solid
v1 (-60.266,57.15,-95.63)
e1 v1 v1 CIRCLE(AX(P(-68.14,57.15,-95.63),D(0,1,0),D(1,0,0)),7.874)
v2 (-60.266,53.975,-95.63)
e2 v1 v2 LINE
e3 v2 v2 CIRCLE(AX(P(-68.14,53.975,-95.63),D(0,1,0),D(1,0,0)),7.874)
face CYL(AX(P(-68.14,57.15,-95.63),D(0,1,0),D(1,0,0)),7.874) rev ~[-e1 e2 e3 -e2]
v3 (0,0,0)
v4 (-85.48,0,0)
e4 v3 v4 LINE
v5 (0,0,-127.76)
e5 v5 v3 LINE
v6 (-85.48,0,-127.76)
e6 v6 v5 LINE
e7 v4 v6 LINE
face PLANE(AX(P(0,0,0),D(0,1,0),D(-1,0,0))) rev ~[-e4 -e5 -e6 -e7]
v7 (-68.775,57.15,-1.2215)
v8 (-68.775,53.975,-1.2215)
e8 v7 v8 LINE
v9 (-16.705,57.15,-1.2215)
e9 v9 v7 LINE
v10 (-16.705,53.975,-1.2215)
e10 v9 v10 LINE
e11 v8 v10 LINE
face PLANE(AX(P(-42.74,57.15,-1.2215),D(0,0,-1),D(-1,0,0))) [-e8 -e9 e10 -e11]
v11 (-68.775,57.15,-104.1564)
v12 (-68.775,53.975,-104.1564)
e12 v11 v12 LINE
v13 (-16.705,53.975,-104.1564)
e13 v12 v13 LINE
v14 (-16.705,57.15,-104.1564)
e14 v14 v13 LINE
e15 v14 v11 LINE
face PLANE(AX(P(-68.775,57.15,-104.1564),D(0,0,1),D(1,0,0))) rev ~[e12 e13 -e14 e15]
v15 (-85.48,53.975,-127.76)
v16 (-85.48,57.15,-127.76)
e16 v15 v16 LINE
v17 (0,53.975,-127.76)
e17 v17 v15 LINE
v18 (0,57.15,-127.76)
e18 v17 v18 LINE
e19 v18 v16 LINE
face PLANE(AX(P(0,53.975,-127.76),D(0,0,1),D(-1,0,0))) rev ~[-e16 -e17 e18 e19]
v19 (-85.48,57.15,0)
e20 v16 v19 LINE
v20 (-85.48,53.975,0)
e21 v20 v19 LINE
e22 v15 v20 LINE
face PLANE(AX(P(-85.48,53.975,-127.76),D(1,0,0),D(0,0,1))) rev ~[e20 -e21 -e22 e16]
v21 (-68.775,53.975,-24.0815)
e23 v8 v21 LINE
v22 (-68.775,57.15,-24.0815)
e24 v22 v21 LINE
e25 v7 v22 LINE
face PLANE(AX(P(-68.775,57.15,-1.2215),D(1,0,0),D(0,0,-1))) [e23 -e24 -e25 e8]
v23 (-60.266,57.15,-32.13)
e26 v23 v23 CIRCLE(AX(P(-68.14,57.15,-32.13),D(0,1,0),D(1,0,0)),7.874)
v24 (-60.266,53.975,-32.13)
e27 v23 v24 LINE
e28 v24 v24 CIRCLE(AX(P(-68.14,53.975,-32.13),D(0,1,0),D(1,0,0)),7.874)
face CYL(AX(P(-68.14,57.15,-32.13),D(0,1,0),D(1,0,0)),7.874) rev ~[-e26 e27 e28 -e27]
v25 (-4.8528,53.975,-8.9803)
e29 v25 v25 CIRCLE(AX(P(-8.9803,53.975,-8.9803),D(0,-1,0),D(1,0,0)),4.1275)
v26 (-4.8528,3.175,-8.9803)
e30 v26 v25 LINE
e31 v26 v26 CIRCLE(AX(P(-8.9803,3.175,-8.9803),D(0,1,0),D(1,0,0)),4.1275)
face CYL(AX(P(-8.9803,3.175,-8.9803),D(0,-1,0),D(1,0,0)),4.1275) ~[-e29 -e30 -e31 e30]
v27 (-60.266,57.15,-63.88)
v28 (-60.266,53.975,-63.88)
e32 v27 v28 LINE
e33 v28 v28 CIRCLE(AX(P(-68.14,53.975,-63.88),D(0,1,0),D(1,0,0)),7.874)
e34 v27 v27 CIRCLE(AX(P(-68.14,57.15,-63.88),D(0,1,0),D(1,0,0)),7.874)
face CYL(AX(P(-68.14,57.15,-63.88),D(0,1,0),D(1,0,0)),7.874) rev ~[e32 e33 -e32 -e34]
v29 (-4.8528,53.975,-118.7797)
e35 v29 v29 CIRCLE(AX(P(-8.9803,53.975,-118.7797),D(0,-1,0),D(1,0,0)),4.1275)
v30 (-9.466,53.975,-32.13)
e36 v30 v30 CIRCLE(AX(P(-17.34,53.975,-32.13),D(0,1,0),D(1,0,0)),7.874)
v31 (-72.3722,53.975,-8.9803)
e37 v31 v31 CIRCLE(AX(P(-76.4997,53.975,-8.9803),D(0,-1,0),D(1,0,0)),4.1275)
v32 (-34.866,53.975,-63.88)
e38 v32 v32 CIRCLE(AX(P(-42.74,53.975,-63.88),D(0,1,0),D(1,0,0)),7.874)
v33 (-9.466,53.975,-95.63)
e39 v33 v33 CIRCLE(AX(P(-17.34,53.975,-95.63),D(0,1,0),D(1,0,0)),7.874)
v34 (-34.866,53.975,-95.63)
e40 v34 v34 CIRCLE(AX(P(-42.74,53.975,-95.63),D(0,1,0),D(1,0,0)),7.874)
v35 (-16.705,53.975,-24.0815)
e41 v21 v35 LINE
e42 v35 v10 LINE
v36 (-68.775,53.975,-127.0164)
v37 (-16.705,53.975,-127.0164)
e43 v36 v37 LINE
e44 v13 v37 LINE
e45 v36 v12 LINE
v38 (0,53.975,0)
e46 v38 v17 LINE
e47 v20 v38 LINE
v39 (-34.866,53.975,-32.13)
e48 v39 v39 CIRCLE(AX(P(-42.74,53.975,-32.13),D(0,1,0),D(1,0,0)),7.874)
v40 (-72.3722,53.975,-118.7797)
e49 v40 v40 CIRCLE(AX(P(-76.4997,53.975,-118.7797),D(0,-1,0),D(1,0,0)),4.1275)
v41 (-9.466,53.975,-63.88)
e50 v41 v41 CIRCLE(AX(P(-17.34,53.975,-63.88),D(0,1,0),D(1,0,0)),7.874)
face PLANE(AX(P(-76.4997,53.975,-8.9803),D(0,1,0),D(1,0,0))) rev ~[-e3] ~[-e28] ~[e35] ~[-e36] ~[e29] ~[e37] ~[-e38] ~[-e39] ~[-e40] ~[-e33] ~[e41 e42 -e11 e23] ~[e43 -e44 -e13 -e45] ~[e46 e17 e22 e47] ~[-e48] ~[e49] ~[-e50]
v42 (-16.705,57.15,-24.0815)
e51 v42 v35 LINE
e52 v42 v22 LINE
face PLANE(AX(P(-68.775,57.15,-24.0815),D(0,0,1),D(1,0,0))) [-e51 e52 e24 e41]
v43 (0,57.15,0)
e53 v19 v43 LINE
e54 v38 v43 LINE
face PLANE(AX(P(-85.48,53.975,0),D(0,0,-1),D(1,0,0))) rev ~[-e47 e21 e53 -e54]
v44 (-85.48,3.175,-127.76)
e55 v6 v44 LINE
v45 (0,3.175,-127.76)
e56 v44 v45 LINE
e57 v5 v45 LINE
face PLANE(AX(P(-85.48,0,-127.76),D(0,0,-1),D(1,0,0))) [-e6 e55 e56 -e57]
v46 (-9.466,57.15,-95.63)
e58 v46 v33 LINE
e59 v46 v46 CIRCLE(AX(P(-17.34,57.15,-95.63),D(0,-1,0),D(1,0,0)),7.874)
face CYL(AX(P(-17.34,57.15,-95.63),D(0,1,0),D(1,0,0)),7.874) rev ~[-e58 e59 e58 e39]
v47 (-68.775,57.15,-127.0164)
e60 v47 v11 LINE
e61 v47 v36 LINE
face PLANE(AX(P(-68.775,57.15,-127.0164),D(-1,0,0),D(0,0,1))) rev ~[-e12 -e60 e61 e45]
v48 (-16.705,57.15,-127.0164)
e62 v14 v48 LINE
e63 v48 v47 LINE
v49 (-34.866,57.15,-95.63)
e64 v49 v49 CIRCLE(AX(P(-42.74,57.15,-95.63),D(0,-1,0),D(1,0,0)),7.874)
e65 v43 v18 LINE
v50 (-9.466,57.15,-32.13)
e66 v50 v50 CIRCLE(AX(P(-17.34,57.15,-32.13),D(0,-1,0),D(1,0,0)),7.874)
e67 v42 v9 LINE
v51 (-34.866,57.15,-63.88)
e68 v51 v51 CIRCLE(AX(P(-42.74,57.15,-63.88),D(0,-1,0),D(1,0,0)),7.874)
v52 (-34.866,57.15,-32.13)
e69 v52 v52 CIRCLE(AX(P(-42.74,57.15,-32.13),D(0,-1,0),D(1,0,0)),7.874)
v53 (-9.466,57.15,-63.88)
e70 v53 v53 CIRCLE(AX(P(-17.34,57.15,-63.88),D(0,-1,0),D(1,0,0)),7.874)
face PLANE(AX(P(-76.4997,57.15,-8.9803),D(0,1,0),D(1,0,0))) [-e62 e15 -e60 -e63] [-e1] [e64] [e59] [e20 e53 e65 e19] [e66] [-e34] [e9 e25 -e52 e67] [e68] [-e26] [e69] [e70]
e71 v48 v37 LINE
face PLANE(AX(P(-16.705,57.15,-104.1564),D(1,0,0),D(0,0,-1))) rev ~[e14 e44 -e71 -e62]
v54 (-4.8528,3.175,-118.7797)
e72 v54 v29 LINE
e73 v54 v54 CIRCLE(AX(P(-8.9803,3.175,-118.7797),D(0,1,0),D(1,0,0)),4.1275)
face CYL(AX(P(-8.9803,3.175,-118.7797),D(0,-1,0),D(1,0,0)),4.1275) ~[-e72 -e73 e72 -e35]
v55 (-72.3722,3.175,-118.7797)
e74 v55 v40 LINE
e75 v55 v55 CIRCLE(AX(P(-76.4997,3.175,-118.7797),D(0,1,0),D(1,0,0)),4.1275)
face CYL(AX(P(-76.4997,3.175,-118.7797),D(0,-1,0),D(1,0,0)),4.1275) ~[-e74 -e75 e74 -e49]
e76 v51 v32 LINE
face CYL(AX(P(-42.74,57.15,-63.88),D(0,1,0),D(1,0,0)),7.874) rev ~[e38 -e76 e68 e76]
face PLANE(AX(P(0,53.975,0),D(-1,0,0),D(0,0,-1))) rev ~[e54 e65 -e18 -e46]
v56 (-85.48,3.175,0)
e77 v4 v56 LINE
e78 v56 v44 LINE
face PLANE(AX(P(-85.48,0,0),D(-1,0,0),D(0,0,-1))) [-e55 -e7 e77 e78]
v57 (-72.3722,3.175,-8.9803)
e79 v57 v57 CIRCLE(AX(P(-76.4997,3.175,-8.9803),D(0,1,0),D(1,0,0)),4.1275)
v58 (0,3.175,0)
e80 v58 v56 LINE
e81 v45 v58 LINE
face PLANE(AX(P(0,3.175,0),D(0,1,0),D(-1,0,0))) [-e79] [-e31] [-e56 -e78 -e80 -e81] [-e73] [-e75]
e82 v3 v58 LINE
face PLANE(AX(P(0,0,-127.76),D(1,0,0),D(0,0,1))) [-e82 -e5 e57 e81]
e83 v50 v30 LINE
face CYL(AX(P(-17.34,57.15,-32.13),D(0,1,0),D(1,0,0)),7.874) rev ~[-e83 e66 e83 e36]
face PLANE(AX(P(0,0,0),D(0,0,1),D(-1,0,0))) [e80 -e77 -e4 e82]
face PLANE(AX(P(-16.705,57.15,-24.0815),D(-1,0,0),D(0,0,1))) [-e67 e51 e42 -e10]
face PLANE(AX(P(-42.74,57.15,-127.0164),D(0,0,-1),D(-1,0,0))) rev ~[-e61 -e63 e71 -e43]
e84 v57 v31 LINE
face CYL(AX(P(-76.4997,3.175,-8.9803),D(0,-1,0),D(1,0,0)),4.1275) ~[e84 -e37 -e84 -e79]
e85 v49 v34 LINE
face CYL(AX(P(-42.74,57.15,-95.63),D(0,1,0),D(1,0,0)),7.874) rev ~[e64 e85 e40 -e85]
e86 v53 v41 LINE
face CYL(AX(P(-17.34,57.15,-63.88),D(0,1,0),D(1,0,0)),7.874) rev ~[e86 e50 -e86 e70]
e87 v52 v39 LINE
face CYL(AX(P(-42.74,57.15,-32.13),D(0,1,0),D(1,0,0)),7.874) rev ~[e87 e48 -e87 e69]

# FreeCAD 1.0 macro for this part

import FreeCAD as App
import Part
import Sketcher

V = App.Vector
Q = App.Units.Quantity


def add_polygon(sketch, points):
    """Adds a closed chain of lines whose ends are joined by coincident constraints."""
    first, n = sketch.GeometryCount, len(points)
    for a, b in zip(points, points[1:] + points[:1]):
        sketch.addGeometry(Part.LineSegment(App.Vector(*a, 0), App.Vector(*b, 0)), False)
    for i in range(n):
        sketch.addConstraint(Sketcher.Constraint("Coincident", first + i, 2, first + (i + 1) % n, 1))

doc = App.newDocument("Part")
body = doc.addObject("PartDesign::Body", "Body")

# Sketch on XZ plane
sketch1 = body.newObject("Sketcher::SketchObject", "Sketch")
sketch1.AttachmentSupport = (doc.getObject("XZ_Plane"), [""])
sketch1.MapMode = "FlatFace"
add_polygon(sketch1, [(-85.48, 0), (0, 0), (0, -127.76), (-85.48, -127.76)])  # lines 0-3
sketch1.addConstraint([
    Sketcher.Constraint("Horizontal", 0),
    Sketcher.Constraint("Vertical", 1),
    Sketcher.Constraint("Horizontal", 2),
    Sketcher.Constraint("Vertical", 3),
    Sketcher.Constraint("Coincident", 0, 2, -1, 1),
    Sketcher.Constraint("DistanceX", 0, 1, 0, 2, Q("85.48 mm")),
    Sketcher.Constraint("DistanceY", 1, 2, 1, 1, Q("127.76 mm")),
])
pad1 = body.newObject("PartDesign::Pad", "Pad")
pad1.Profile = sketch1
pad1.Length = Q("0.125 in")
pad1.Reversed = True

# Sketch on XZ plane
sketch2 = body.newObject("Sketcher::SketchObject", "Sketch001")
sketch2.AttachmentSupport = (doc.getObject("XZ_Plane"), [""])
sketch2.MapMode = "FlatFace"
sketch2.AttachmentOffset = App.Placement(V(0, 0, -0.125 * 25.4), App.Rotation())
sketch2.addGeometry([
    Part.Circle(V(-76.4997, -8.9803, 0), V(0, 0, 1), 4.1275),
    Part.Circle(V(-8.9803, -118.7797, 0), V(0, 0, 1), 4.1275),
    Part.Circle(V(-76.4997, -118.7797, 0), V(0, 0, 1), 4.1275),
    Part.Circle(V(-8.9803, -8.9803, 0), V(0, 0, 1), 4.1275),
], False)
sketch2.addConstraint([
    Sketcher.Constraint("Equal", 0, 1),
    Sketcher.Constraint("Equal", 1, 2),
    Sketcher.Constraint("Equal", 2, 3),
    Sketcher.Constraint("Horizontal", 1, 3, 2, 3),
    Sketcher.Constraint("Horizontal", 0, 3, 3, 3),
    Sketcher.Constraint("Vertical", 0, 3, 2, 3),
    Sketcher.Constraint("Vertical", 1, 3, 3, 3),
    Sketcher.Constraint("Diameter", 0, Q("0.325 in")),
    Sketcher.Constraint("DistanceX", 0, 3, -1, 1, Q("3.0118 in")),
    Sketcher.Constraint("DistanceY", 1, 3, 0, 3, Q("4.3228 in")),
    Sketcher.Constraint("DistanceY", 0, 3, -1, 1, Q("8.9803 mm")),
    Sketcher.Constraint("DistanceX", 1, 3, -1, 1, Q("8.9803 mm")),
])
pad2 = body.newObject("PartDesign::Pad", "Pad001")
pad2.Profile = sketch2
pad2.Length = Q("2 in")
pad2.Reversed = True

# Sketch on XZ plane
sketch3 = body.newObject("Sketcher::SketchObject", "Sketch002")
sketch3.AttachmentSupport = (doc.getObject("XZ_Plane"), [""])
sketch3.MapMode = "FlatFace"
sketch3.AttachmentOffset = App.Placement(V(0, 0, -2.125 * 25.4), App.Rotation())
add_polygon(sketch3, [(-85.48, -127.76), (-85.48, 0), (0, 0), (0, -127.76)])  # lines 0-3
sketch3.addConstraint([
    Sketcher.Constraint("Vertical", 0),
    Sketcher.Constraint("Horizontal", 1),
    Sketcher.Constraint("Vertical", 2),
    Sketcher.Constraint("Horizontal", 3),
    Sketcher.Constraint("Coincident", 1, 2, -1, 1),
    Sketcher.Constraint("DistanceX", 1, 1, 1, 2, Q("85.48 mm")),
    Sketcher.Constraint("DistanceY", 0, 1, 0, 2, Q("127.76 mm")),
])
pad3 = body.newObject("PartDesign::Pad", "Pad002")
pad3.Profile = sketch3
pad3.Length = Q("0.125 in")
pad3.Reversed = True

# Sketch on XZ plane
sketch4 = body.newObject("Sketcher::SketchObject", "Sketch003")
sketch4.AttachmentSupport = (doc.getObject("XZ_Plane"), [""])
sketch4.MapMode = "FlatFace"
sketch4.AttachmentOffset = App.Placement(V(0, 0, -2.25 * 25.4), App.Rotation())
add_polygon(sketch4, [(-68.775, -1.2215), (-16.705, -1.2215), (-16.705, -24.0815), (-68.775, -24.0815)])  # lines 0-3
sketch4.addGeometry(Part.Circle(V(-68.14, -32.13, 0), V(0, 0, 1), 7.874), False)  # 4
sketch4.addGeometry(Part.Circle(V(-68.14, -63.88, 0), V(0, 0, 1), 7.874), False)  # 5
sketch4.addGeometry(Part.Circle(V(-68.14, -95.63, 0), V(0, 0, 1), 7.874), False)  # 6
add_polygon(sketch4, [(-68.775, -104.1564), (-16.705, -104.1564), (-16.705, -127.0164), (-68.775, -127.0164)])  # lines 7-10
sketch4.addGeometry(Part.Circle(V(-17.34, -95.63, 0), V(0, 0, 1), 7.874), False)  # 11
sketch4.addGeometry(Part.Circle(V(-42.74, -95.63, 0), V(0, 0, 1), 7.874), False)  # 12
sketch4.addGeometry(Part.Circle(V(-17.34, -63.88, 0), V(0, 0, 1), 7.874), False)  # 13
sketch4.addGeometry(Part.Circle(V(-42.74, -63.88, 0), V(0, 0, 1), 7.874), False)  # 14
sketch4.addGeometry(Part.Circle(V(-17.34, -32.13, 0), V(0, 0, 1), 7.874), False)  # 15
sketch4.addGeometry(Part.Circle(V(-42.74, -32.13, 0), V(0, 0, 1), 7.874), False)  # 16
sketch4.addConstraint([
    Sketcher.Constraint("Horizontal", 0),
    Sketcher.Constraint("Vertical", 1),
    Sketcher.Constraint("Horizontal", 2),
    Sketcher.Constraint("Vertical", 3),
    Sketcher.Constraint("Horizontal", 7),
    Sketcher.Constraint("Vertical", 8),
    Sketcher.Constraint("Horizontal", 9),
    Sketcher.Constraint("Vertical", 10),
    Sketcher.Constraint("Equal", 4, 5),
    Sketcher.Constraint("Equal", 5, 6),
    Sketcher.Constraint("Equal", 6, 11),
    Sketcher.Constraint("Equal", 11, 12),
    Sketcher.Constraint("Equal", 12, 13),
    Sketcher.Constraint("Equal", 13, 14),
    Sketcher.Constraint("Equal", 14, 15),
    Sketcher.Constraint("Equal", 15, 16),
    Sketcher.Constraint("Horizontal", 6, 3, 11, 3),
    Sketcher.Constraint("Horizontal", 11, 3, 12, 3),
    Sketcher.Constraint("Horizontal", 5, 3, 13, 3),
    Sketcher.Constraint("Horizontal", 13, 3, 14, 3),
    Sketcher.Constraint("Horizontal", 4, 3, 15, 3),
    Sketcher.Constraint("Horizontal", 15, 3, 16, 3),
    Sketcher.Constraint("Vertical", 4, 3, 5, 3),
    Sketcher.Constraint("Vertical", 5, 3, 6, 3),
    Sketcher.Constraint("Vertical", 11, 3, 13, 3),
    Sketcher.Constraint("Vertical", 12, 3, 14, 3),
    Sketcher.Constraint("Vertical", 13, 3, 15, 3),
    Sketcher.Constraint("Vertical", 14, 3, 16, 3),
    Sketcher.Constraint("Vertical", 1, 2, 7, 2),
    Sketcher.Constraint("Vertical", 3, 2, 9, 2),
    Sketcher.Constraint("Equal", 3, 8),
    Sketcher.Constraint("Diameter", 4, Q("0.62 in")),
    Sketcher.Constraint("DistanceY", 1, 2, 1, 1, Q("0.9 in")),
    Sketcher.Constraint("DistanceX", 6, 3, 12, 3, Q("1 in")),
    Sketcher.Constraint("DistanceX", 12, 3, 11, 3, Q("1 in")),
    Sketcher.Constraint("DistanceX", 0, 1, 0, 2, Q("2.05 in")),
    Sketcher.Constraint("DistanceY", 5, 3, 4, 3, Q("1.25 in")),
    Sketcher.Constraint("DistanceY", 6, 3, 5, 3, Q("1.25 in")),
    Sketcher.Constraint("DistanceX", 15, 3, 0, 2, Q("0.025 in")),
    Sketcher.Constraint("DistanceY", 0, 2, -1, 1, Q("0.0481 in")),
    Sketcher.Constraint("DistanceX", 4, 3, -1, 1, Q("68.14 mm")),
    Sketcher.Constraint("DistanceY", 4, 3, -1, 1, Q("32.13 mm")),
    Sketcher.Constraint("DistanceY", 7, 2, -1, 1, Q("104.1564 mm")),
])
pocket1 = body.newObject("PartDesign::Pocket", "Pocket")
pocket1.Profile = sketch4
pocket1.Length = Q("0.125 in")
pocket1.Reversed = True

doc.recompute()
